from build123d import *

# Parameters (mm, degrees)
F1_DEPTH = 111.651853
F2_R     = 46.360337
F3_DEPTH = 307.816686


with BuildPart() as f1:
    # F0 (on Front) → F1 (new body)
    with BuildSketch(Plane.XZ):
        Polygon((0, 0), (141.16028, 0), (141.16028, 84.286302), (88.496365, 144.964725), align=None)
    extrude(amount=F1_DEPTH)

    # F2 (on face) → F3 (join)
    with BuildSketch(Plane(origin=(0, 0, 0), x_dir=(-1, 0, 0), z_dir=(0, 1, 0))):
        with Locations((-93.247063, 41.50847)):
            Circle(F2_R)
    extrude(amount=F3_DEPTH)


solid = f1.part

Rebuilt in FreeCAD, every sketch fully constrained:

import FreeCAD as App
import Part
import Sketcher
from FreeCAD import Vector
Q = App.Units.Quantity


def add_polygon(sketch, points):
    """Adds a closed chain of lines whose ends are joined by coincident constraints."""
    first, n = sketch.GeometryCount, len(points)
    for a, b in zip(points, points[1:] + points[:1]):
        sketch.addGeometry(Part.LineSegment(App.Vector(*a, 0), App.Vector(*b, 0)), False)
    for i in range(n):
        sketch.addConstraint(Sketcher.Constraint("Coincident", first + i, 2, first + (i + 1) % n, 1))

doc = App.newDocument("Part")
body = doc.addObject("PartDesign::Body", "Body")

sketch1 = body.newObject("Sketcher::SketchObject", "Sketch")
sketch1.AttachmentSupport = (doc.getObject("XZ_Plane"), [""])
sketch1.MapMode = "FlatFace"
add_polygon(sketch1, [(0, 0), (141, 0), (141, 84), (88, 145)])
sketch1.addConstraint(Sketcher.Constraint("Horizontal", 0))
sketch1.addConstraint(Sketcher.Constraint("Vertical", 1))
sketch1.addConstraint(Sketcher.Constraint("Coincident", 3, 2, -1, 1))
sketch1.addConstraint(Sketcher.Constraint("DistanceX", 0, 1, 0, 2, Q("141.16028 mm")))
sketch1.addConstraint(Sketcher.Constraint("Distance", 2, Q("80.345249 mm")))
sketch1.addConstraint(Sketcher.Constraint("DistanceY", 1, 1, 1, 2, Q("84.286302 mm")))
sketch1.addConstraint(Sketcher.Constraint("Distance", 3, Q("169.842215 mm")))
pad1 = body.newObject("PartDesign::Pad", "Pad")
pad1.Profile = sketch1
pad1.Length = 111.651853

sketch2 = body.newObject("Sketcher::SketchObject", "Sketch001")
sketch2.AttachmentSupport = (doc.getObject("XZ_Plane"), [""])
sketch2.MapMode = "FlatFace"
sketch2.addGeometry(Part.Circle(Vector(93, 42, 0), Vector(0, 0, 1), 46), False)
sketch2.addConstraint(Sketcher.Constraint("Diameter", 0, Q("92.720674 mm")))
sketch2.addConstraint(Sketcher.Constraint("DistanceY", -1, 1, 0, 3, Q("41.50847 mm")))
sketch2.addConstraint(Sketcher.Constraint("DistanceX", -1, 1, 0, 3, Q("93.247063 mm")))
pad2 = body.newObject("PartDesign::Pad", "Pad001")
pad2.Profile = sketch2
pad2.Length = 307.816686
pad2.Reversed = True

doc.recompute()
